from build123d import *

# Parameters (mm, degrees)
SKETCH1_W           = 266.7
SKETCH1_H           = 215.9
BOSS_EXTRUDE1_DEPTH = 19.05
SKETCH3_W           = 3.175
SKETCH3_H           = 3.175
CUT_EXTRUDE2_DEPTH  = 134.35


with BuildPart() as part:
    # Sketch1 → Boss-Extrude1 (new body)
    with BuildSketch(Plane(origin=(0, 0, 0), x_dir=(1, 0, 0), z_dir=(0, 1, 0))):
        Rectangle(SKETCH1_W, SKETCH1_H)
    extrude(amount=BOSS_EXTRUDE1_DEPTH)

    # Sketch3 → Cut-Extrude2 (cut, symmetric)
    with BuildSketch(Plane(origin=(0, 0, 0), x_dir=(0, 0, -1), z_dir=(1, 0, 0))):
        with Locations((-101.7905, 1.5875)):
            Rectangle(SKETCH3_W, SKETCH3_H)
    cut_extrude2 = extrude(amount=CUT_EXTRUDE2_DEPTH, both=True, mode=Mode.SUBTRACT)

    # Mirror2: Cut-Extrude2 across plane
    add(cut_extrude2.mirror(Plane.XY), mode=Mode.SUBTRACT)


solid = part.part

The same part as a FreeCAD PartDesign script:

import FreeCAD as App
import Part
import Sketcher

V = App.Vector
Q = App.Units.Quantity


def add_polygon(sketch, points):
    """Adds a closed chain of lines whose ends are joined by coincident constraints."""
    first, n = sketch.GeometryCount, len(points)
    for a, b in zip(points, points[1:] + points[:1]):
        sketch.addGeometry(Part.LineSegment(App.Vector(*a, 0), App.Vector(*b, 0)), False)
    for i in range(n):
        sketch.addConstraint(Sketcher.Constraint("Coincident", first + i, 2, first + (i + 1) % n, 1))

doc = App.newDocument("Part")
body = doc.addObject("PartDesign::Body", "Body")

# Sketch on XZ plane
sketch1 = body.newObject("Sketcher::SketchObject", "Sketch")
sketch1.AttachmentSupport = (doc.getObject("XZ_Plane"), [""])
sketch1.MapMode = "FlatFace"
add_polygon(sketch1, [(-133, -108), (-133, 108), (133, 108), (133, -108)])  # lines 0-3
sketch1.addConstraint(Sketcher.Constraint("Vertical", 0))
sketch1.addConstraint(Sketcher.Constraint("Horizontal", 1))
sketch1.addConstraint(Sketcher.Constraint("Vertical", 2))
sketch1.addConstraint(Sketcher.Constraint("Horizontal", 3))
sketch1.addConstraint(Sketcher.Constraint("Symmetric", 0, 2, 2, 2, -1, 1))
sketch1.addConstraint(Sketcher.Constraint("DistanceX", 1, 1, 1, 2, Q("10.5 in")))
sketch1.addConstraint(Sketcher.Constraint("DistanceY", 0, 1, 0, 2, Q("8.5 in")))
pad1 = body.newObject("PartDesign::Pad", "Pad")
pad1.Profile = sketch1
pad1.Length = Q("0.75 in")
pad1.Reversed = True

# Sketch on YZ plane
sketch2 = body.newObject("Sketcher::SketchObject", "Sketch001")
sketch2.AttachmentSupport = (doc.getObject("YZ_Plane"), [""])
sketch2.MapMode = "FlatFace"
add_polygon(sketch2, [(3.2, 103.4), (0, 103.4), (0, 100.2), (3.2, 100.2)])  # lines 0-3
sketch2.addConstraint(Sketcher.Constraint("Horizontal", 0))
sketch2.addConstraint(Sketcher.Constraint("Vertical", 1))
sketch2.addConstraint(Sketcher.Constraint("Horizontal", 2))
sketch2.addConstraint(Sketcher.Constraint("Vertical", 3))
sketch2.addConstraint(Sketcher.Constraint("PointOnObject", 0, 2, -2))
sketch2.addConstraint(Sketcher.Constraint("Equal", 2, 1))
sketch2.addConstraint(Sketcher.Constraint("DistanceX", 0, 2, 0, 1, Q("0.125 in")))
sketch2.addConstraint(Sketcher.Constraint("DistanceY", -1, 1, 0, 2, Q("4.07 in")))
pocket1 = body.newObject("PartDesign::Pocket", "Pocket")
pocket1.Profile = sketch2
pocket1.Length = 268.7
pocket1.Midplane = True
doc.recompute()

mirrored = body.newObject("PartDesign::Mirrored", "Mirrored")
mirrored.Originals = [pocket1]
mirrored.MirrorPlane = (doc.getObject("XY_Plane"), [""])
body.Tip = mirrored

doc.recompute()
